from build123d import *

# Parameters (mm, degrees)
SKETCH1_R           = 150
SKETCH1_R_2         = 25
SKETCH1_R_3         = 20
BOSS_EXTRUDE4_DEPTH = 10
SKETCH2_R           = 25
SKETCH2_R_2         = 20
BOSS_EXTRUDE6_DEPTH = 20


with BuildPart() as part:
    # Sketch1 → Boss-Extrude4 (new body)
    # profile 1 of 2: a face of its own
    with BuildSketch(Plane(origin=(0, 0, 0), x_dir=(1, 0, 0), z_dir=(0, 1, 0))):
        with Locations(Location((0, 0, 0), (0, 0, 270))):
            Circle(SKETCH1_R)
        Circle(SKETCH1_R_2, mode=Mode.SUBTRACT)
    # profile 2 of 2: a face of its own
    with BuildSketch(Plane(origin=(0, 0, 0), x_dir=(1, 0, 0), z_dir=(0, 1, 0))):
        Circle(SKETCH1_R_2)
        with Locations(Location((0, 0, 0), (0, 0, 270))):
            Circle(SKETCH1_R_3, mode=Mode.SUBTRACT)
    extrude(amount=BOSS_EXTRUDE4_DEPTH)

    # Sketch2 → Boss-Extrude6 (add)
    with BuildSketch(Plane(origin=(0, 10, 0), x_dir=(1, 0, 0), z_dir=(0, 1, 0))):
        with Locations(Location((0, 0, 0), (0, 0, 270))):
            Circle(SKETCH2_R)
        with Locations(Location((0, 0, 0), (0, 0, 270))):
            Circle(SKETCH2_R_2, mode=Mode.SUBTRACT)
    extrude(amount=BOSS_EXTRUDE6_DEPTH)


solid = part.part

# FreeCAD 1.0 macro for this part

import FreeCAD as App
import Part
import Sketcher

V = App.Vector

doc = App.newDocument("Part")
body = doc.addObject("PartDesign::Body", "Body")

# Sketch on XZ plane
sketch1 = body.newObject("Sketcher::SketchObject", "Sketch")
sketch1.AttachmentSupport = (doc.getObject("XZ_Plane"), [""])
sketch1.MapMode = "FlatFace"
sketch1.addGeometry(Part.Circle(V(0, 0, 0), V(0, 0, 1), 150), False)
sketch1.addGeometry(Part.Circle(V(0, 0, 0), V(0, 0, 1), 20), False)
sketch1.addConstraint(Sketcher.Constraint("Coincident", 0, 3, -1, 1))
sketch1.addConstraint(Sketcher.Constraint("Coincident", 1, 3, -1, 1))
sketch1.addConstraint(Sketcher.Constraint("Diameter", 0, 300.0))
sketch1.addConstraint(Sketcher.Constraint("Diameter", 1, 40.0))
pad1 = body.newObject("PartDesign::Pad", "Pad")
pad1.Profile = sketch1
pad1.Length = 10
pad1.Reversed = True

# Sketch on XZ plane
sketch2 = body.newObject("Sketcher::SketchObject", "Sketch001")
sketch2.AttachmentSupport = (doc.getObject("XZ_Plane"), [""])
sketch2.MapMode = "FlatFace"
sketch2.AttachmentOffset = App.Placement(V(0, 0, -10), App.Rotation())
sketch2.addGeometry(Part.Circle(V(0, 0, 0), V(0, 0, 1), 25), False)
sketch2.addGeometry(Part.Circle(V(0, 0, 0), V(0, 0, 1), 20), False)
sketch2.addConstraint(Sketcher.Constraint("Coincident", 0, 3, -1, 1))
sketch2.addConstraint(Sketcher.Constraint("Coincident", 1, 3, -1, 1))
sketch2.addConstraint(Sketcher.Constraint("Diameter", 0, 50.0))
sketch2.addConstraint(Sketcher.Constraint("Diameter", 1, 40.0))
pad2 = body.newObject("PartDesign::Pad", "Pad001")
pad2.Profile = sketch2
pad2.Length = 20
pad2.Reversed = True

doc.recompute()
